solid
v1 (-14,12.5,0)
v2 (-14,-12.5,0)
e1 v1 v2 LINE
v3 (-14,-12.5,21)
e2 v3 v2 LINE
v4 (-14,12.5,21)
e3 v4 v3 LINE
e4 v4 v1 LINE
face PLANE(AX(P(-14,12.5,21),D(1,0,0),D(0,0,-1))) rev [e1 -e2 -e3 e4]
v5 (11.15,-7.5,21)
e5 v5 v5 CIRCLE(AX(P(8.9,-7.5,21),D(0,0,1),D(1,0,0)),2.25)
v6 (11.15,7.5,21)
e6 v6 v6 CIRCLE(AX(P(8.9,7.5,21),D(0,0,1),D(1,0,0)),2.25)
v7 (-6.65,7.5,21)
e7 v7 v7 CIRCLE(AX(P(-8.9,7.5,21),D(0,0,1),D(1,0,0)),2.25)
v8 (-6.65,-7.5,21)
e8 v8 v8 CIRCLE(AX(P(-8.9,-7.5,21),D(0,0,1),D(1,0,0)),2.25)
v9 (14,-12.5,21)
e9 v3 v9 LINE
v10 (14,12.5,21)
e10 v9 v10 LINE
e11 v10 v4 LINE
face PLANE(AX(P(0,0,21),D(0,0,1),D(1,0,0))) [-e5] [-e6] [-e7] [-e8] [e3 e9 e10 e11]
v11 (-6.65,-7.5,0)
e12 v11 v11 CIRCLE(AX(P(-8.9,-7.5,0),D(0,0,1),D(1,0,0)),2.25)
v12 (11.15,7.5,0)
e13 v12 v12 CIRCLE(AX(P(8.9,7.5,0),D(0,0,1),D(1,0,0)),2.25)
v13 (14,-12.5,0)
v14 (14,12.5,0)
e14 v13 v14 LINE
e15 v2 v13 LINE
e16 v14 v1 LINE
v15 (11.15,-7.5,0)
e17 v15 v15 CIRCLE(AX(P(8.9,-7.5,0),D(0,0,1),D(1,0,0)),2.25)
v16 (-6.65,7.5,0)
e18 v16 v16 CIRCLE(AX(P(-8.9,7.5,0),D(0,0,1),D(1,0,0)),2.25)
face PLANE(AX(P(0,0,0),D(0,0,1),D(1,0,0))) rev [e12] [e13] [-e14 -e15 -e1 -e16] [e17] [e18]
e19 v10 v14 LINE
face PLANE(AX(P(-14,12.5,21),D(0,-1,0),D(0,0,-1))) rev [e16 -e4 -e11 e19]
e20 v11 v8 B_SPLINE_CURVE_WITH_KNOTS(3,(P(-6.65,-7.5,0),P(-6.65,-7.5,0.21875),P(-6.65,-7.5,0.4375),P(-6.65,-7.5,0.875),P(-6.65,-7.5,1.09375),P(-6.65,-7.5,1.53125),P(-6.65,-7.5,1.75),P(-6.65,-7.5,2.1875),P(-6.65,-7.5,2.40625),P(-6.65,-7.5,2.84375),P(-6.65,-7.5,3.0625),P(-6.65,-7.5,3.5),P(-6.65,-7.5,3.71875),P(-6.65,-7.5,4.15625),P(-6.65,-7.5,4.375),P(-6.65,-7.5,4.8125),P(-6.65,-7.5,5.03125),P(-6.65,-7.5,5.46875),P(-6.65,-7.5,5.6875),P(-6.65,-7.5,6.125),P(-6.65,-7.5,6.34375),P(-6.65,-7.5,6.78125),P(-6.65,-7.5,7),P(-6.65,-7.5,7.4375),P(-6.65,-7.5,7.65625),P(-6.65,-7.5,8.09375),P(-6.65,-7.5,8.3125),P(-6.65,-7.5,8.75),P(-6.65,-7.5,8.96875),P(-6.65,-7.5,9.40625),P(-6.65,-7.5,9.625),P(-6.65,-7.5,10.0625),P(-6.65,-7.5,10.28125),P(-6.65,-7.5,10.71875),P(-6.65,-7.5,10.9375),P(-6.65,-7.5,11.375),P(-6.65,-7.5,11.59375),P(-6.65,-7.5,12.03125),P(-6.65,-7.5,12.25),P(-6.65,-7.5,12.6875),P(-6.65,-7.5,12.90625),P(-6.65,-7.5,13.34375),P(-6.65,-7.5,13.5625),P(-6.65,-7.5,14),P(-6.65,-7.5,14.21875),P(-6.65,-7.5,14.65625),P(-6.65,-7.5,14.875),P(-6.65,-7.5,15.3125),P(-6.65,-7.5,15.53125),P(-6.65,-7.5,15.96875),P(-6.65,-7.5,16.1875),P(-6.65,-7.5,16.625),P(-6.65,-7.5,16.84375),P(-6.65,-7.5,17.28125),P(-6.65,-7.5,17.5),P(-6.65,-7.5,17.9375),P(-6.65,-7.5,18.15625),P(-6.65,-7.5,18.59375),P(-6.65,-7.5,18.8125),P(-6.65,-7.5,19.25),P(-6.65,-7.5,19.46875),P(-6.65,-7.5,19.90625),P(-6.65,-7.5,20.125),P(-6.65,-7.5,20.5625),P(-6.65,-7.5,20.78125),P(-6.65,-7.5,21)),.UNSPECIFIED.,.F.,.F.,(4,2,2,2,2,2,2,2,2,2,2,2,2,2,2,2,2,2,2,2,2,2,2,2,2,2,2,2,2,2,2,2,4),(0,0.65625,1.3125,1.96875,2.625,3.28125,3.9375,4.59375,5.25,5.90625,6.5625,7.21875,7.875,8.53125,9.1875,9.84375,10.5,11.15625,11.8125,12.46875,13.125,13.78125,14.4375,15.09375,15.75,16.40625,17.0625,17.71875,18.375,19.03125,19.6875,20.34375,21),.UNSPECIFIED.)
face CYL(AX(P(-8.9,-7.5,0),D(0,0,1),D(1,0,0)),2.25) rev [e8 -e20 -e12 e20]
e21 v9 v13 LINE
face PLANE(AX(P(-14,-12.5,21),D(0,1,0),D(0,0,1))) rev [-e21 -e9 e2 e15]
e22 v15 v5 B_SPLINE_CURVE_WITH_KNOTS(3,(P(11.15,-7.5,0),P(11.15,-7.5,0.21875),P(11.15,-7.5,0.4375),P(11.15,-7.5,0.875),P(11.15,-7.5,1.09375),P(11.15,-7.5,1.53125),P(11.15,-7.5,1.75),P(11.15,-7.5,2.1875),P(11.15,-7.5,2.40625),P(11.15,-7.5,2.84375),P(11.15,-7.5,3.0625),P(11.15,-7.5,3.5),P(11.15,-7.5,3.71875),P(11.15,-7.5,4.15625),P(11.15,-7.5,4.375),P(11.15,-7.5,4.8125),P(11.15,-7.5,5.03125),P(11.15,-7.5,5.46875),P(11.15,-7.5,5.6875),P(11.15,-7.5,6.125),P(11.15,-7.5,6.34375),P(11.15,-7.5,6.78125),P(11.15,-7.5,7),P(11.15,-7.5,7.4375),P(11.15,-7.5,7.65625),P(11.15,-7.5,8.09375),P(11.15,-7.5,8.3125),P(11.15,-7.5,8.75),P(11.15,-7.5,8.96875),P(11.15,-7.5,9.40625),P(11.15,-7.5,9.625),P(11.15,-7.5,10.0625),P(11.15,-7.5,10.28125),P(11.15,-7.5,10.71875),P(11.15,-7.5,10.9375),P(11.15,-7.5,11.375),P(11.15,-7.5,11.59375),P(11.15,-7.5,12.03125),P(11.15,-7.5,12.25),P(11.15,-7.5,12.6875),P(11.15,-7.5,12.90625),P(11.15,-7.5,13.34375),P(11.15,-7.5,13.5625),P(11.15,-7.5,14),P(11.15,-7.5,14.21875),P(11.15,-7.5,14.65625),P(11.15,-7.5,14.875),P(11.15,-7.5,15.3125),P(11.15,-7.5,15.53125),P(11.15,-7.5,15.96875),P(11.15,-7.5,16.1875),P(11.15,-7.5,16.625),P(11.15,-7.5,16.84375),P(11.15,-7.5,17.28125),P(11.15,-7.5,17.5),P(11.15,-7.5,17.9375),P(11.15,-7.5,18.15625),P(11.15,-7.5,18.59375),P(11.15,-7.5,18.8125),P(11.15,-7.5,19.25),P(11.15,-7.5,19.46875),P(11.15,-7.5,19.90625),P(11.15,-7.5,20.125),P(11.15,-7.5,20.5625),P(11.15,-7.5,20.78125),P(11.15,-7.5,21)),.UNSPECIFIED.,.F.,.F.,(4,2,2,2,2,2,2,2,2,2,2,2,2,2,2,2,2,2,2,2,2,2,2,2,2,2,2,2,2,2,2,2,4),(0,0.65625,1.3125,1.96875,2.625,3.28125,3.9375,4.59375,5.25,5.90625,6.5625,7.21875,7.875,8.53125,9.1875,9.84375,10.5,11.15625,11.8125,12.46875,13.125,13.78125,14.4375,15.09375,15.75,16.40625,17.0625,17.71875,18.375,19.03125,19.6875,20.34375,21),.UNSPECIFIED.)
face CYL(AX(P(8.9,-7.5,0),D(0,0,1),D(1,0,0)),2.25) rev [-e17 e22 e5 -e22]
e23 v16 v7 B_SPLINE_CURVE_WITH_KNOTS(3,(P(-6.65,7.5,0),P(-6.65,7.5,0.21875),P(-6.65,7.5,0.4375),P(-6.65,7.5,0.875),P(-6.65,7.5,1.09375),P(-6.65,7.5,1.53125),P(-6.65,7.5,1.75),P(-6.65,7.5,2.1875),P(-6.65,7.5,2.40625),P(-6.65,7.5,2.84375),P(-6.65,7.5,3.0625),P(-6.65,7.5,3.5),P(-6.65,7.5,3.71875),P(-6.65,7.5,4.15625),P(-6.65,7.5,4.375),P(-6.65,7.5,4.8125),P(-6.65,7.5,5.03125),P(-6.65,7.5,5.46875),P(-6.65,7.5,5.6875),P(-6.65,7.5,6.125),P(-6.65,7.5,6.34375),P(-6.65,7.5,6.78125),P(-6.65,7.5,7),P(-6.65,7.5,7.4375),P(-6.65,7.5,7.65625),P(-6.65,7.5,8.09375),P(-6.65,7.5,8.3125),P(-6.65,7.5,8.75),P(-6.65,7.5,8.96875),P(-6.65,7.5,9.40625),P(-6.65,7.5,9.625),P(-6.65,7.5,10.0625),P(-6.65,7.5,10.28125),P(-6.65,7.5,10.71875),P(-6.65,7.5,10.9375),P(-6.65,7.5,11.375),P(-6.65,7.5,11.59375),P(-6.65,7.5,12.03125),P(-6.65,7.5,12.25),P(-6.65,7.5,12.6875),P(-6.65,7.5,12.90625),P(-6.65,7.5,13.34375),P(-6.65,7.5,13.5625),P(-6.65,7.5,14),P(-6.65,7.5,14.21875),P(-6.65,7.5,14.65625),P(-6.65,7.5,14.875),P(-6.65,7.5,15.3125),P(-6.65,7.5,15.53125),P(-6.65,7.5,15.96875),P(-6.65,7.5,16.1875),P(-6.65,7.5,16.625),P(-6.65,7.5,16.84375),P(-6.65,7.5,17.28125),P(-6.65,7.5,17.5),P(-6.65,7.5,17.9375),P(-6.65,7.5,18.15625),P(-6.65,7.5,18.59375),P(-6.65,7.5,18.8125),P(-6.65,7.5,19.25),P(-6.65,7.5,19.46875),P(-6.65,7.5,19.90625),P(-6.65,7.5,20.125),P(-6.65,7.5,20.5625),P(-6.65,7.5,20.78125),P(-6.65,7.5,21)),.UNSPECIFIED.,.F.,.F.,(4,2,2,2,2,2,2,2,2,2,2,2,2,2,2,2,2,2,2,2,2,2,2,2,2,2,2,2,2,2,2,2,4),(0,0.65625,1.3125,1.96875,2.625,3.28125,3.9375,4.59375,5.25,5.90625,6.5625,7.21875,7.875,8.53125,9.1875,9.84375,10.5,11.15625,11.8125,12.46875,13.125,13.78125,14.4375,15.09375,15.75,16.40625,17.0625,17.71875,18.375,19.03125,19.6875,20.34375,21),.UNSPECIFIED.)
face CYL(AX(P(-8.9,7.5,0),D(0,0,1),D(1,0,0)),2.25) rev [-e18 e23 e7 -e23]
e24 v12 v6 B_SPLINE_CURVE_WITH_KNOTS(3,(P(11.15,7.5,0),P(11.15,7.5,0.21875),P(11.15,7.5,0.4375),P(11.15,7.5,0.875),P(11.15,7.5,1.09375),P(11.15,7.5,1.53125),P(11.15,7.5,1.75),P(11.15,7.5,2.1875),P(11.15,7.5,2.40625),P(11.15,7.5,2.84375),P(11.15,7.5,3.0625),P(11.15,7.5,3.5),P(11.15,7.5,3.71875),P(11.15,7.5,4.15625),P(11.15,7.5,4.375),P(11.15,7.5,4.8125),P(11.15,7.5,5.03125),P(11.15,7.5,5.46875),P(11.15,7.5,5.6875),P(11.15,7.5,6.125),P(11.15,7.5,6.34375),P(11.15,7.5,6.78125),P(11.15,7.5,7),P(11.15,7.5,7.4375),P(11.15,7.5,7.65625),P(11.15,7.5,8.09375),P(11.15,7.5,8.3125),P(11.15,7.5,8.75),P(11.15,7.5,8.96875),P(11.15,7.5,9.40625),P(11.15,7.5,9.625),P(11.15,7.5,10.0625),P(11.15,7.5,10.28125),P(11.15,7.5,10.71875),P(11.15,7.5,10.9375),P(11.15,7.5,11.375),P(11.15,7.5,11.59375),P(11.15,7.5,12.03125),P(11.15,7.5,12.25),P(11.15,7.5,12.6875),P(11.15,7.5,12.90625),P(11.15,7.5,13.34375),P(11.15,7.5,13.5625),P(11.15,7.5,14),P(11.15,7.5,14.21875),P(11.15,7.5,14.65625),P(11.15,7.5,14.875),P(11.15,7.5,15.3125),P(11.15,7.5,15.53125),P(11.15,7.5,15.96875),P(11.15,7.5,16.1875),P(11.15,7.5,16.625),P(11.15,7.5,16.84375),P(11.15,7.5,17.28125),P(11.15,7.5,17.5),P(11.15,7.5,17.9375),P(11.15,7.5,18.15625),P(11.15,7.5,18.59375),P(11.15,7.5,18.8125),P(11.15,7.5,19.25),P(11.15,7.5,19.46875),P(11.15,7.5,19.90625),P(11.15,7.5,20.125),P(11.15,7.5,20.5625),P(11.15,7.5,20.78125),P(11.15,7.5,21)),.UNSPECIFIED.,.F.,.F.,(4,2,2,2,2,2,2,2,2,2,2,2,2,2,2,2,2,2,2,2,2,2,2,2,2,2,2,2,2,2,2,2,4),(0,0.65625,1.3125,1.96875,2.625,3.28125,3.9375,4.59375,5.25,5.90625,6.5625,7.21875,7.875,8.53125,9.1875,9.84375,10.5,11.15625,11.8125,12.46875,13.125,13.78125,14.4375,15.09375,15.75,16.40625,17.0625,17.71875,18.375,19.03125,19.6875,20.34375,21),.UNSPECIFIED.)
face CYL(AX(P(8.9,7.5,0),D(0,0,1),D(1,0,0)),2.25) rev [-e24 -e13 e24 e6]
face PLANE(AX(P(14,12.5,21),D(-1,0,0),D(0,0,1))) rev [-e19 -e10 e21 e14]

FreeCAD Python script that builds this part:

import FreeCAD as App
import Part
import Sketcher
Q = App.Units.Quantity

doc = App.newDocument("Part")
body = doc.addObject("PartDesign::Body", "Body")

# Sketch on XY plane
sketch1 = doc.addObject("Sketcher::SketchObject", "Sketch")
body.addObject(sketch1)
sketch1.AttachmentSupport = (doc.XY_Plane, [""])
sketch1.MapMode = "FlatFace"
sketch1.addGeometry([
    Part.LineSegment(App.Vector(-14, 12.5, 0), App.Vector(-14, -12.5, 0)),
    Part.LineSegment(App.Vector(-14, -12.5, 0), App.Vector(14, -12.5, 0)),
    Part.LineSegment(App.Vector(14, -12.5, 0), App.Vector(14, 12.5, 0)),
    Part.LineSegment(App.Vector(14, 12.5, 0), App.Vector(-14, 12.5, 0)),
], False)
sketch1.addConstraint([
    Sketcher.Constraint("Coincident", 0, 2, 1, 1),
    Sketcher.Constraint("Coincident", 1, 2, 2, 1),
    Sketcher.Constraint("Coincident", 2, 2, 3, 1),
    Sketcher.Constraint("Coincident", 3, 2, 0, 1),
    Sketcher.Constraint("Vertical", 0),
    Sketcher.Constraint("Horizontal", 1),
    Sketcher.Constraint("Vertical", 2),
    Sketcher.Constraint("Horizontal", 3),
    Sketcher.Constraint("Symmetric", 0, 2, 2, 2, -1, 1),
    Sketcher.Constraint("DistanceX", 1, 1, 1, 2, Q("28 mm")),
    Sketcher.Constraint("DistanceY", 0, 2, 0, 1, Q("25 mm")),
])
pad1 = doc.addObject("PartDesign::Pad", "Pad")
body.addObject(pad1)
pad1.Profile = sketch1
pad1.Length = 21

# Sketch on XY plane
sketch2 = doc.addObject("Sketcher::SketchObject", "Sketch001")
body.addObject(sketch2)
sketch2.AttachmentSupport = (doc.XY_Plane, [""])
sketch2.MapMode = "FlatFace"
sketch2.AttachmentOffset = App.Placement(App.Vector(0, 0, 21), App.Rotation())
sketch2.addGeometry([
    Part.Circle(App.Vector(-8.9, -7.5, 0), App.Vector(0, 0, 1), 2.25),
    Part.Circle(App.Vector(8.9, -7.5, 0), App.Vector(0, 0, 1), 2.25),
    Part.Circle(App.Vector(8.9, 7.5, 0), App.Vector(0, 0, 1), 2.25),
    Part.Circle(App.Vector(-8.9, 7.5, 0), App.Vector(0, 0, 1), 2.25),
], False)
sketch2.addConstraint([
    Sketcher.Constraint("Equal", 0, 1),
    Sketcher.Constraint("Equal", 1, 2),
    Sketcher.Constraint("Equal", 2, 3),
    Sketcher.Constraint("Symmetric", 0, 3, 2, 3, -1, 1),
    Sketcher.Constraint("Symmetric", 1, 3, 3, 3, -1, 1),
    Sketcher.Constraint("Symmetric", 0, 3, 1, 3, -2),
    Sketcher.Constraint("Diameter", 0, Q("4.5 mm")),
    Sketcher.Constraint("DistanceY", 1, 3, 2, 3, Q("15 mm")),
    Sketcher.Constraint("DistanceX", 0, 3, -1, 1, Q("8.9 mm")),
])
pocket1 = doc.addObject("PartDesign::Pocket", "Pocket")
body.addObject(pocket1)
pocket1.Profile = sketch2
pocket1.Length = 21

doc.recompute()
